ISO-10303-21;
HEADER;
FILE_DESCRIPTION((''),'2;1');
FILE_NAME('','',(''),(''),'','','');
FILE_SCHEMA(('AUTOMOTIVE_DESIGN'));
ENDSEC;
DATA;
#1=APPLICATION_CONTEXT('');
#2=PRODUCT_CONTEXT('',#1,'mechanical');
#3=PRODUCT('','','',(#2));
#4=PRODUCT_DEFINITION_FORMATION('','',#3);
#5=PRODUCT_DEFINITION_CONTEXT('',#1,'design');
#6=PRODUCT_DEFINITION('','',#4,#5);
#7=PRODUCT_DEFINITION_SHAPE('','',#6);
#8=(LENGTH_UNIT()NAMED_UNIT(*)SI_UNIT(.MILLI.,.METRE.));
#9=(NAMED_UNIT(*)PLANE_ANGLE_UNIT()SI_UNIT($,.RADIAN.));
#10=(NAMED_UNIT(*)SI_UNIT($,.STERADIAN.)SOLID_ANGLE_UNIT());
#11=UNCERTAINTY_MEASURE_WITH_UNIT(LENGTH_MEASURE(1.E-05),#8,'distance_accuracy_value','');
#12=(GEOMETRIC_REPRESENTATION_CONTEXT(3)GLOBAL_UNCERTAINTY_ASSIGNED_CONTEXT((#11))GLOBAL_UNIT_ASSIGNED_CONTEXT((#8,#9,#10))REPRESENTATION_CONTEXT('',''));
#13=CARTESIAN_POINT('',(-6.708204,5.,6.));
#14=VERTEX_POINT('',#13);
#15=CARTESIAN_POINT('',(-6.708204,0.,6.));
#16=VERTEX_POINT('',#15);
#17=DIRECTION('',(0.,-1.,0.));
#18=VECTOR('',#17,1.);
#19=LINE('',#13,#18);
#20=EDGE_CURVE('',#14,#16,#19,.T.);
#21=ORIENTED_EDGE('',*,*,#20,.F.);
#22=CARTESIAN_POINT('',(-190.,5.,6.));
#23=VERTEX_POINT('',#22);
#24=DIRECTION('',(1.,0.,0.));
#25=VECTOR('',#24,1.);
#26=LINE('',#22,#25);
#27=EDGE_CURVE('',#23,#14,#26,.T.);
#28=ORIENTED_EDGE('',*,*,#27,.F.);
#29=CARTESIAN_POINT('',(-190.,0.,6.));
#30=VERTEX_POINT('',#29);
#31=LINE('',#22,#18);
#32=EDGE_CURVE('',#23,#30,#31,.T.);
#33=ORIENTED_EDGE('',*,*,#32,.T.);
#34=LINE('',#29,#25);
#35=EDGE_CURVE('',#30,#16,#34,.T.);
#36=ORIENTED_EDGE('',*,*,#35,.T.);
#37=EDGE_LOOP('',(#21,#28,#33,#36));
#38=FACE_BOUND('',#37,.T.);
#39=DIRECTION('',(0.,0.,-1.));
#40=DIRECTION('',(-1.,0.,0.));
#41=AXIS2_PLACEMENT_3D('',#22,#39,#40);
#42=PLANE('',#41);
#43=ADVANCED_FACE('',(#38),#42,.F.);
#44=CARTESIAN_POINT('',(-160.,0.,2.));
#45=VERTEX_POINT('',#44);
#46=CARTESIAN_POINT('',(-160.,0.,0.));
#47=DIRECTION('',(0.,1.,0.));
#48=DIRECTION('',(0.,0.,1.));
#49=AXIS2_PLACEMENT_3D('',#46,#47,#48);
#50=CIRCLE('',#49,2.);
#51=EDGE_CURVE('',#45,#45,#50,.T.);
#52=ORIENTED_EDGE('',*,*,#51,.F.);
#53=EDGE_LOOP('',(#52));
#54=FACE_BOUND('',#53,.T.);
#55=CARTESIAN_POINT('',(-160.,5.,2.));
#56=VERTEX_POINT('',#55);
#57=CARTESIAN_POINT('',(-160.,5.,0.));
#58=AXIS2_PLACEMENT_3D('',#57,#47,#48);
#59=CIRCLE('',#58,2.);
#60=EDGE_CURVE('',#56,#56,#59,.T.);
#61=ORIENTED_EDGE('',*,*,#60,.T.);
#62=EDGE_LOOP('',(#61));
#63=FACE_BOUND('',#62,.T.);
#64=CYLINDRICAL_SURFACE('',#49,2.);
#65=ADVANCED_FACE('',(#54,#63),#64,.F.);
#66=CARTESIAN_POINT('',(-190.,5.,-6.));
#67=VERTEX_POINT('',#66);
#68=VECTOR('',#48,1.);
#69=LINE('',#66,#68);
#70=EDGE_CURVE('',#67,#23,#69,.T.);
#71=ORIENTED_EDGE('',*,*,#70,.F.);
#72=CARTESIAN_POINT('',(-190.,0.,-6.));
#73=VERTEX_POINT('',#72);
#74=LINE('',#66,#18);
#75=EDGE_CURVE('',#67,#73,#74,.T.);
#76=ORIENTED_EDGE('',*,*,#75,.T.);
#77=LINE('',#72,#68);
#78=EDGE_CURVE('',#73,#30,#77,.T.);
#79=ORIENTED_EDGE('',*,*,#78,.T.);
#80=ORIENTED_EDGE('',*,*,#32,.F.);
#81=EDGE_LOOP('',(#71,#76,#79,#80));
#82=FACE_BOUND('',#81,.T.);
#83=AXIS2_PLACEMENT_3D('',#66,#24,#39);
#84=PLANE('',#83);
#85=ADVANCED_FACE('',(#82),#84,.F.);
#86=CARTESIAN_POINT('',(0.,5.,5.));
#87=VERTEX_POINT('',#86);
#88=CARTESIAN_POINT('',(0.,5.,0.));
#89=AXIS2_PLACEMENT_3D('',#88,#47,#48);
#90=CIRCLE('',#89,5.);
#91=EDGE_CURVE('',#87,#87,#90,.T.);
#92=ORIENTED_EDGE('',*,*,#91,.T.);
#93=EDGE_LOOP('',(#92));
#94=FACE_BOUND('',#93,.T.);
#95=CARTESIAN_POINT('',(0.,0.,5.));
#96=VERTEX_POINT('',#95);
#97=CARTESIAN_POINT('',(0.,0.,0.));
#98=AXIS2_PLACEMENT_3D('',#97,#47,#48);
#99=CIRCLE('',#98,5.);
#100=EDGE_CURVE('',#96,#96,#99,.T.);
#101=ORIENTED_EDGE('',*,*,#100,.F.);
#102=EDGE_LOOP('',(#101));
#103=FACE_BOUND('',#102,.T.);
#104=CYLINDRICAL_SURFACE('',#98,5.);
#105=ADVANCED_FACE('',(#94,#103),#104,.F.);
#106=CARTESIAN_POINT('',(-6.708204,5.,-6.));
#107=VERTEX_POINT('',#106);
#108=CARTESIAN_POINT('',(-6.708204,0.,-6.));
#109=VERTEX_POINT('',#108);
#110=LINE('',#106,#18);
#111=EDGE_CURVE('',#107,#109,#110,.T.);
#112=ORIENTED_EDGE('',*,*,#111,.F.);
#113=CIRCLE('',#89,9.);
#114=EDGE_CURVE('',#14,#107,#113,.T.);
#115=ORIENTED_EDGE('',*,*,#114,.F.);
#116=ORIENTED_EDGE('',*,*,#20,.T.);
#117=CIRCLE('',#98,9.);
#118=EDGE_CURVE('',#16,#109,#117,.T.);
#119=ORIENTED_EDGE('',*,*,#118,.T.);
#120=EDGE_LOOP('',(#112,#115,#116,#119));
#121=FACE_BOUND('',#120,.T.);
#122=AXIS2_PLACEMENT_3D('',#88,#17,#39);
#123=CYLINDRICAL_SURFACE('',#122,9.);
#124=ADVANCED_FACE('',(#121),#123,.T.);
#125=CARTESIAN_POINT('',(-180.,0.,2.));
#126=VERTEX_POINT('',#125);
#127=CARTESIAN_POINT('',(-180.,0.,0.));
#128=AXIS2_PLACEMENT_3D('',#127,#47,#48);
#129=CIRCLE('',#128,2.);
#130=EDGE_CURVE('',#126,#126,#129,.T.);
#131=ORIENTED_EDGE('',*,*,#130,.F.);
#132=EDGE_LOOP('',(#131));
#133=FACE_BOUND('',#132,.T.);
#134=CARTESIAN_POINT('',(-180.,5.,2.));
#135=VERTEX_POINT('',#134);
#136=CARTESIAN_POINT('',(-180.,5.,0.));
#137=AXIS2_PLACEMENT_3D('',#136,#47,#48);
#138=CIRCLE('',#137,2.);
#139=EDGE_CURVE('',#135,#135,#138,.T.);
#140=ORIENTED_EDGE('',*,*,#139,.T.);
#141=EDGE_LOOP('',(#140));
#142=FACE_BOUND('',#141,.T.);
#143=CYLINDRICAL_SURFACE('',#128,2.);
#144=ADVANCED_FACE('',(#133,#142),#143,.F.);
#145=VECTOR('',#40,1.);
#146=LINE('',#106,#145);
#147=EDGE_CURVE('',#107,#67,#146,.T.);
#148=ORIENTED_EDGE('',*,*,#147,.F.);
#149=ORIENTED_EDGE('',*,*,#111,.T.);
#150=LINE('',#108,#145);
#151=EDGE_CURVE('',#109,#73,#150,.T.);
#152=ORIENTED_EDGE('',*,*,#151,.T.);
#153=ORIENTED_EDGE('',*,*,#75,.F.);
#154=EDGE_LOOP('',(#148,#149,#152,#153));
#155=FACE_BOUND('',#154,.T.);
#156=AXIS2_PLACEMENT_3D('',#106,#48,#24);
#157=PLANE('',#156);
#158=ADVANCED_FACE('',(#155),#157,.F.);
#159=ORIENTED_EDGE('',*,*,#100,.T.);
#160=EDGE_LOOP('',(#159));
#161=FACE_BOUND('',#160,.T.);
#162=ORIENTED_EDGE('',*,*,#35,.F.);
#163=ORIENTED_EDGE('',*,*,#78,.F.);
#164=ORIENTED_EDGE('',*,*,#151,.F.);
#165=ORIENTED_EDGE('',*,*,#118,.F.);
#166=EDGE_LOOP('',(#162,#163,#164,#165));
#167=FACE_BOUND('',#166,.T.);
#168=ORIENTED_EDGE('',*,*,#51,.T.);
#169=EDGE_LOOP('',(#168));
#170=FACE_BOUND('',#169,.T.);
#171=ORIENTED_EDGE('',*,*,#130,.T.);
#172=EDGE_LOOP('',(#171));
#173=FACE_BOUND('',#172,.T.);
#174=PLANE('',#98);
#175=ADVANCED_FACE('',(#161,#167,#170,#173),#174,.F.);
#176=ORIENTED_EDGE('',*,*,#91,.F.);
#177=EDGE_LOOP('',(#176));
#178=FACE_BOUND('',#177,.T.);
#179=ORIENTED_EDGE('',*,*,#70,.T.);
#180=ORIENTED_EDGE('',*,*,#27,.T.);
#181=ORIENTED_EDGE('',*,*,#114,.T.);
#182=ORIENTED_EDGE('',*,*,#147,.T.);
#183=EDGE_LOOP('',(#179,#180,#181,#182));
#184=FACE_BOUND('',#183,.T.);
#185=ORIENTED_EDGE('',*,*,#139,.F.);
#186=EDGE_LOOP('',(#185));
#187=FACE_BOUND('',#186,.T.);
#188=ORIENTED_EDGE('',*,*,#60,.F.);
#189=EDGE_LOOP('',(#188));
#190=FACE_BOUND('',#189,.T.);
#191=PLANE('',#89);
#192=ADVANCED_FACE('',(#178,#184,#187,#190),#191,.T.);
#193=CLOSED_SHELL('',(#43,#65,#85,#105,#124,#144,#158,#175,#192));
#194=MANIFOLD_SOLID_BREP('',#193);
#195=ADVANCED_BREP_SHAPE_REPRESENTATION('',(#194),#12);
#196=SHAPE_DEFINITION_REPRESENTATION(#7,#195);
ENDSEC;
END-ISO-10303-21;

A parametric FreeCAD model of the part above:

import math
import FreeCAD as App
import Part
import Sketcher

doc = App.newDocument("Part")
params = doc.addObject("Spreadsheet::Sheet", "Params")
for row, (alias, value) in enumerate([
    ("sketch1_radius", "9 mm"),
    ("sketch1_height", "12 mm"),
    ("pad1_length", "5 mm"),
    ("sketch2_diameter", "10 mm"),
    ("sketch2_diameter2", "4 mm"),
], start=1):
    params.set(f"A{row}", alias)
    params.set(f"B{row}", "=" + value)
    params.setAlias(f"B{row}", alias)

body = doc.addObject("PartDesign::Body", "Body")

# Sketch on XZ plane
sketch1 = body.newObject("Sketcher::SketchObject", "Sketch")
sketch1.AttachmentSupport = (doc.getObject("XZ_Plane"), [""])
sketch1.MapMode = "FlatFace"
sketch1.addGeometry([
    Part.LineSegment(App.Vector(-7, -6, 0), App.Vector(-190, -6, 0)),
    Part.LineSegment(App.Vector(-190, -6, 0), App.Vector(-190, 6, 0)),
    Part.LineSegment(App.Vector(-190, 6, 0), App.Vector(-7, 6, 0)),
    Part.ArcOfCircle(Part.Circle(App.Vector(0, 0, 0), App.Vector(0, 0, 1), 9), math.radians(-138), math.radians(138)),
], False)
sketch1.addConstraint([
    Sketcher.Constraint("Coincident", 0, 2, 1, 1),
    Sketcher.Constraint("Coincident", 1, 2, 2, 1),
    Sketcher.Constraint("Coincident", 2, 2, 3, 2),
    Sketcher.Constraint("Coincident", 3, 1, 0, 1),
    Sketcher.Constraint("Horizontal", 0),
    Sketcher.Constraint("Vertical", 1),
    Sketcher.Constraint("Horizontal", 2),
    Sketcher.Constraint("Coincident", 3, 3, -1, 1),
    Sketcher.Constraint("Vertical", 2, 2, 3, 1),
    Sketcher.Constraint("Radius", 3, 9.0),
    Sketcher.Constraint("DistanceY", 1, 1, 1, 2, 12.0),
    Sketcher.Constraint("DistanceX", 0, 2, -1, 1, 190.0),
])
sketch1.setExpression("Constraints[9]", "Params.sketch1_radius")
sketch1.setExpression("Constraints[10]", "Params.sketch1_height")
pad1 = body.newObject("PartDesign::Pad", "Pad")
pad1.Profile = sketch1
pad1.setExpression("Length", "Params.pad1_length")
pad1.Reversed = True

# Sketch on XZ plane
sketch2 = body.newObject("Sketcher::SketchObject", "Sketch001")
sketch2.AttachmentSupport = (doc.getObject("XZ_Plane"), [""])
sketch2.MapMode = "FlatFace"
sketch2.AttachmentOffset = App.Placement(App.Vector(0, 0, -5), App.Rotation())
sketch2.addGeometry([
    Part.Circle(App.Vector(0, 0, 0), App.Vector(0, 0, 1), 5),
    Part.Circle(App.Vector(-180, 0, 0), App.Vector(0, 0, 1), 2),
    Part.Circle(App.Vector(-160, 0, 0), App.Vector(0, 0, 1), 2),
], False)
sketch2.addConstraint([
    Sketcher.Constraint("Coincident", 0, 3, -1, 1),
    Sketcher.Constraint("Equal", 1, 2),
    Sketcher.Constraint("PointOnObject", 1, 3, -1),
    Sketcher.Constraint("PointOnObject", 2, 3, -1),
    Sketcher.Constraint("Diameter", 0, 10.0),
    Sketcher.Constraint("Diameter", 1, 4.0),
    Sketcher.Constraint("DistanceX", 1, 3, -1, 1, 180.0),
    Sketcher.Constraint("DistanceX", 2, 3, -1, 1, 160.0),
])
sketch2.setExpression("Constraints[4]", "Params.sketch2_diameter")
sketch2.setExpression("Constraints[5]", "Params.sketch2_diameter2")
pocket1 = body.newObject("PartDesign::Pocket", "Pocket")
pocket1.Profile = sketch2
pocket1.Type = "ThroughAll"
pocket1.Reversed = True

doc.recompute()
